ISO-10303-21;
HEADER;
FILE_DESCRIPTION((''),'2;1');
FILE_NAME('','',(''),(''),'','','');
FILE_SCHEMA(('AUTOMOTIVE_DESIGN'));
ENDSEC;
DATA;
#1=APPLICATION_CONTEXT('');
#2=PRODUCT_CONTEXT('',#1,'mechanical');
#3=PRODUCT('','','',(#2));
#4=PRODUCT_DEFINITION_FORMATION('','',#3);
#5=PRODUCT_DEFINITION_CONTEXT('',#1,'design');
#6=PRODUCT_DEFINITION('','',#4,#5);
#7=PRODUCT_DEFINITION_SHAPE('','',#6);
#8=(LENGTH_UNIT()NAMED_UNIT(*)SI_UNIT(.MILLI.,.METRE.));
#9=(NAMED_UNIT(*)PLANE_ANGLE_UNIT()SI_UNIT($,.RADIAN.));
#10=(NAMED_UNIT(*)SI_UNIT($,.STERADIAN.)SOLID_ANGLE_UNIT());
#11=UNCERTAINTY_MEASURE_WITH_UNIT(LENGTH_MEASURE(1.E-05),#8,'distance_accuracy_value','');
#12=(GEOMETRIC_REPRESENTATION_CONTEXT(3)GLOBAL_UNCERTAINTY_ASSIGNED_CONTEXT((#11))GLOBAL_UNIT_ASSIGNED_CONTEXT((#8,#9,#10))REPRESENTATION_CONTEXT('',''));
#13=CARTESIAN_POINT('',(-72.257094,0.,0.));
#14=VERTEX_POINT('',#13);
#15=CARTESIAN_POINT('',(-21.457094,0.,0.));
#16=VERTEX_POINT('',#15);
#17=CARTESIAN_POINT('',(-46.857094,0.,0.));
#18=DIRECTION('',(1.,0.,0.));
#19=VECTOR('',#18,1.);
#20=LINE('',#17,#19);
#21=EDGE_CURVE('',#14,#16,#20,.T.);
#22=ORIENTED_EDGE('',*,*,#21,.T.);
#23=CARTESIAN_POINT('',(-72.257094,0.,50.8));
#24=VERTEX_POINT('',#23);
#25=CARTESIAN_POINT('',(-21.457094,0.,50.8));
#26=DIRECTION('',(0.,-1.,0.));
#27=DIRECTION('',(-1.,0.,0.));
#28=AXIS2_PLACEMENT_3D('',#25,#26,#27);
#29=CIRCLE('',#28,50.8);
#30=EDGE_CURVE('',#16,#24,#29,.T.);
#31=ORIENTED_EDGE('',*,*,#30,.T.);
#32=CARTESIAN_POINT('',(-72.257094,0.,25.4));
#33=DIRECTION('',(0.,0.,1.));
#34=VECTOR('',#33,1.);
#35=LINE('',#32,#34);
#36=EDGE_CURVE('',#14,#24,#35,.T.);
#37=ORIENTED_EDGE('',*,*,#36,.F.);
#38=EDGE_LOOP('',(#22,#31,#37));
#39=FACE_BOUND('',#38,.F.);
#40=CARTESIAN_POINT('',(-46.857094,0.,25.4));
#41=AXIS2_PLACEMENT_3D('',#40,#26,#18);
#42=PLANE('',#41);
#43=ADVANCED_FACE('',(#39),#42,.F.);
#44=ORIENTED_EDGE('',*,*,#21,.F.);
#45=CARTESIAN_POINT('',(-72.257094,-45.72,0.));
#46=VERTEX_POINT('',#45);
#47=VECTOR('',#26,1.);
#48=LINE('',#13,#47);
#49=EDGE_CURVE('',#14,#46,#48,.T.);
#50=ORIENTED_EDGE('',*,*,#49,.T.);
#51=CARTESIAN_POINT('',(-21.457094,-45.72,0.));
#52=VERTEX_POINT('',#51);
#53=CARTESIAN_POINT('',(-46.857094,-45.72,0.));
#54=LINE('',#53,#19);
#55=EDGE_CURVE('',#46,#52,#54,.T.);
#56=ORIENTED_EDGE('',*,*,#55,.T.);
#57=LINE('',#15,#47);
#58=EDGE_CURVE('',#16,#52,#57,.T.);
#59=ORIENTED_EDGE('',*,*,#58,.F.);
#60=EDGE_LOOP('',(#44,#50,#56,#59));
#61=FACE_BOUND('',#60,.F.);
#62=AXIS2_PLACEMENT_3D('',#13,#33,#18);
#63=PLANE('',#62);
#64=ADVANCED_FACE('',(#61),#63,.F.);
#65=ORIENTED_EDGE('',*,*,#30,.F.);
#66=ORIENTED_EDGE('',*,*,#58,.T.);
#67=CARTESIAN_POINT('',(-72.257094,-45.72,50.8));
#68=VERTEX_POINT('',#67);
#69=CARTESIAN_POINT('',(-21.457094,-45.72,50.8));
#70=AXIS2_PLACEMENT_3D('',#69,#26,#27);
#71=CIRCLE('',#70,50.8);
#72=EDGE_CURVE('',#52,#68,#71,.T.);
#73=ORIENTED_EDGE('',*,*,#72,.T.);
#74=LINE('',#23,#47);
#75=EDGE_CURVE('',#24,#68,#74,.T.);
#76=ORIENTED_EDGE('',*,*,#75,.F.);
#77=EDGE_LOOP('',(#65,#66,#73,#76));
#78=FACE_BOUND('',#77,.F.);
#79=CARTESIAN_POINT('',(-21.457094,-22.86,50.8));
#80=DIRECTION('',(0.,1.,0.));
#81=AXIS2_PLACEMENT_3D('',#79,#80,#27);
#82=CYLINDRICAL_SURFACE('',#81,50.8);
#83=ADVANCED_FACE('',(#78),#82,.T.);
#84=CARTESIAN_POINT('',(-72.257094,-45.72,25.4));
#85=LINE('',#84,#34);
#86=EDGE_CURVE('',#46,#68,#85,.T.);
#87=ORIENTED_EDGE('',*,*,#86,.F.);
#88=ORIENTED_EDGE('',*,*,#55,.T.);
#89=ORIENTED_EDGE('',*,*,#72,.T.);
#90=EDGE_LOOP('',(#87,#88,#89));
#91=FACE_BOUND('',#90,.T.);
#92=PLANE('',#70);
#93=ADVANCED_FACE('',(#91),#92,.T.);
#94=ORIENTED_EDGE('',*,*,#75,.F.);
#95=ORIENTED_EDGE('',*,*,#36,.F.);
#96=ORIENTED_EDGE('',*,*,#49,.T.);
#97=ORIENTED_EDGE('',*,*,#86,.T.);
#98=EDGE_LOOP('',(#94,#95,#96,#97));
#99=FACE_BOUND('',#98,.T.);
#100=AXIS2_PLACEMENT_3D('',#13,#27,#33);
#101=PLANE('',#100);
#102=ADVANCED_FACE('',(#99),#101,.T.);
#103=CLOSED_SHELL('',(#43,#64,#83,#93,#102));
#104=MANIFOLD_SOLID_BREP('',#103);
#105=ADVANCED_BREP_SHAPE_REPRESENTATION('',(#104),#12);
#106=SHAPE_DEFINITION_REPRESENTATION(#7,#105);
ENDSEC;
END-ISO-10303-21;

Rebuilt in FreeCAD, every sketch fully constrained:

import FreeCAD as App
import Part
import Sketcher

V = App.Vector
Q = App.Units.Quantity


def add_polygon(sketch, points):
    """Adds a closed chain of lines whose ends are joined by coincident constraints."""
    first, n = sketch.GeometryCount, len(points)
    for a, b in zip(points, points[1:] + points[:1]):
        sketch.addGeometry(Part.LineSegment(App.Vector(*a, 0), App.Vector(*b, 0)), False)
    for i in range(n):
        sketch.addConstraint(Sketcher.Constraint("Coincident", first + i, 2, first + (i + 1) % n, 1))

doc = App.newDocument("Part")
body = doc.addObject("PartDesign::Body", "Body")

sketch1 = body.newObject("Sketcher::SketchObject", "Sketch")
sketch1.AttachmentSupport = (doc.getObject("XZ_Plane"), [""])
sketch1.MapMode = "FlatFace"
add_polygon(sketch1, [(-72.257094, 50.8), (-72.257094, 0), (-21.457094, 0), (-21.457094, 50.8)])
sketch1.addConstraint([
    Sketcher.Constraint("Vertical", 0),
    Sketcher.Constraint("Horizontal", 1),
    Sketcher.Constraint("Vertical", 2),
    Sketcher.Constraint("Horizontal", 3),
    Sketcher.Constraint("PointOnObject", 0, 2, -1),
    Sketcher.Constraint("Equal", 3, 0),
    Sketcher.Constraint("DistanceX", 1, 1, 1, 2, Q("2 in")),
    Sketcher.Constraint("DistanceX", 0, 2, -1, 1, 72.257094),
])
pad1 = body.newObject("PartDesign::Pad", "Pad")
pad1.Profile = sketch1
pad1.Length = Q("1.8 in")

sketch2 = body.newObject("Sketcher::SketchObject", "Sketch001")
sketch2.AttachmentSupport = (doc.getObject("XY_Plane"), [""])
sketch2.MapMode = "FlatFace"
sketch2.AttachmentOffset = App.Placement(V(0, 0, 2 * 25.4), App.Rotation())
add_polygon(sketch2, [(-72.257094, 0), (-72.257094, -45.72), (-21.457094, -45.72), (-21.457094, 0)])
sketch2.addGeometry(Part.LineSegment(V(-21.457094, 0, 0), V(-21.457094, -45.72, 0)), True)
sketch2.addConstraint([
    Sketcher.Constraint("Vertical", 0),
    Sketcher.Constraint("Horizontal", 1),
    Sketcher.Constraint("Vertical", 2),
    Sketcher.Constraint("Horizontal", 3),
    Sketcher.Constraint("Vertical", 4),
    Sketcher.Constraint("Coincident", 4, 1, 2, 2),
    Sketcher.Constraint("PointOnObject", 2, 2, -1),
    Sketcher.Constraint("Horizontal", 0, 2, 4, 2),
    Sketcher.Constraint("DistanceX", 1, 1, 1, 2, Q("2 in")),
    Sketcher.Constraint("DistanceY", 0, 2, 0, 1, Q("1.8 in")),
    Sketcher.Constraint("DistanceX", 0, 2, -1, 1, 72.257094),
])
revolution = body.newObject("PartDesign::Revolution", "Revolution")
revolution.Profile = sketch2
revolution.ReferenceAxis = (sketch2, ["Axis0"])
revolution.Angle = 360

doc.recompute()
